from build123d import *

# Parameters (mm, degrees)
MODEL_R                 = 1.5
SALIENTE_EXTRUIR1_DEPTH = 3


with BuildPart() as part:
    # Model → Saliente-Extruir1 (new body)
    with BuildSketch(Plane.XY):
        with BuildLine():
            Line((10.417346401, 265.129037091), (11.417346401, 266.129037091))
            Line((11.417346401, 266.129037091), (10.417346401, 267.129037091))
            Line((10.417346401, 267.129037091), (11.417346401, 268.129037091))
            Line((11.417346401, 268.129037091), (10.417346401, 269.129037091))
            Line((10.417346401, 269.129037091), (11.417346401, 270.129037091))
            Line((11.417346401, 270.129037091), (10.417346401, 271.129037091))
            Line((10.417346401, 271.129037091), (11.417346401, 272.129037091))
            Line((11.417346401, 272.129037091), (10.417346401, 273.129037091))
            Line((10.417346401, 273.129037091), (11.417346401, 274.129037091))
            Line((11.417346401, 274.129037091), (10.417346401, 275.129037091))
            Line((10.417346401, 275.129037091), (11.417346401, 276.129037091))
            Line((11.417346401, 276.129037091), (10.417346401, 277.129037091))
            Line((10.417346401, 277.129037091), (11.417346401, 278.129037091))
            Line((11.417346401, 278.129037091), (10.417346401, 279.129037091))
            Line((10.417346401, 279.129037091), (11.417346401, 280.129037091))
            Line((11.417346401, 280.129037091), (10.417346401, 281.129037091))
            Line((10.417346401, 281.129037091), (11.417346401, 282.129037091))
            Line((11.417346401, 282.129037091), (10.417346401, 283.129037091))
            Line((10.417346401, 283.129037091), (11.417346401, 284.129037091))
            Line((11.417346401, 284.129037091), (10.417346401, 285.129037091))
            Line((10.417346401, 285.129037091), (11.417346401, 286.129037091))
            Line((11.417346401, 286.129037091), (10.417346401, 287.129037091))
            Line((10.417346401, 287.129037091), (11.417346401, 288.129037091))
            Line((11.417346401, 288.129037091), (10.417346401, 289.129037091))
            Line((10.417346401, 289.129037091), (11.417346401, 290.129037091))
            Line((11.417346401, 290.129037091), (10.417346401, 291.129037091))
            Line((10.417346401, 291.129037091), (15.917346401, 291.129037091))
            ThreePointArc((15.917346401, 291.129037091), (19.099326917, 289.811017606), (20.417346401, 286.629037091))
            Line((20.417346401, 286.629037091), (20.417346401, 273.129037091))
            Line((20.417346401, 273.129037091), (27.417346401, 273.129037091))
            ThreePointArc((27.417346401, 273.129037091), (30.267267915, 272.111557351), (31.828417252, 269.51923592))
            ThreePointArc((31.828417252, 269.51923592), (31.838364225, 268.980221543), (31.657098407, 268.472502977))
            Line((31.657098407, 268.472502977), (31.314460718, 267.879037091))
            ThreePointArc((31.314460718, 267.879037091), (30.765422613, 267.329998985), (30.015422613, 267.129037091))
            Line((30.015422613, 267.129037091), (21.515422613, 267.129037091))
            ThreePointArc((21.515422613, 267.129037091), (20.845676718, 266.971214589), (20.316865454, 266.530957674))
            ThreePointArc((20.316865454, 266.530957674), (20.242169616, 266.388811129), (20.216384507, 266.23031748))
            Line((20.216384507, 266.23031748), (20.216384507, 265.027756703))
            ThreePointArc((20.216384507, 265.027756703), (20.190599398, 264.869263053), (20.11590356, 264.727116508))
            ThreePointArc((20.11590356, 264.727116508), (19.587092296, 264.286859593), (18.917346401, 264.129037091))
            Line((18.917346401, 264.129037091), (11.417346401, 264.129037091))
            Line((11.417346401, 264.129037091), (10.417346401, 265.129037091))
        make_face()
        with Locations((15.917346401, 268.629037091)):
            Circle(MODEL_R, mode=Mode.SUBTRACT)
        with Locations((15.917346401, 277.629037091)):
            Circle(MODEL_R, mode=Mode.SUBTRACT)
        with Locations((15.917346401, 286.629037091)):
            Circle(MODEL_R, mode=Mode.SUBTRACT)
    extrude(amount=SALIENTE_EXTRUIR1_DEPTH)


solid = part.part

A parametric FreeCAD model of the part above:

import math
import FreeCAD as App
import Part
import Sketcher
from FreeCAD import Vector
Q = App.Units.Quantity

doc = App.newDocument("Part")
body = doc.addObject("PartDesign::Body", "Body")

sketch1 = doc.addObject("Sketcher::SketchObject", "Sketch")
body.addObject(sketch1)
sketch1.AttachmentSupport = (doc.XY_Plane, [""])
sketch1.MapMode = "FlatFace"
sketch1.addGeometry([
    Part.LineSegment(Vector(11.42, 266.13, 0), Vector(10.42, 265.13, 0)),
    Part.LineSegment(Vector(10.42, 265.13, 0), Vector(11.42, 264.13, 0)),
    Part.LineSegment(Vector(11.42, 264.13, 0), Vector(18.92, 264.13, 0)),
    Part.ArcOfCircle(Part.Circle(Vector(18.92, 265.63, 0), Vector(0, 0, 1), 1.5), math.radians(-90), math.radians(-37)),
    Part.ArcOfCircle(Part.Circle(Vector(19.72, 265.03, 0), Vector(0, 0, 1), 0.5), math.radians(-37), math.radians(0)),
    Part.LineSegment(Vector(20.22, 265.03, 0), Vector(20.22, 266.23, 0)),
    Part.ArcOfCircle(Part.Circle(Vector(20.72, 266.23, 0), Vector(0, 0, 1), 0.5), math.radians(143), math.radians(180)),
    Part.ArcOfCircle(Part.Circle(Vector(21.52, 265.63, 0), Vector(0, 0, 1), 1.5), math.radians(90), math.radians(143)),
    Part.LineSegment(Vector(21.52, 267.13, 0), Vector(30.02, 267.13, 0)),
    Part.ArcOfCircle(Part.Circle(Vector(30.02, 268.63, 0), Vector(0, 0, 1), 1.5), math.radians(-90), math.radians(-30)),
    Part.LineSegment(Vector(31.31, 267.88, 0), Vector(31.66, 268.47, 0)),
    Part.ArcOfCircle(Part.Circle(Vector(30.36, 269.22, 0), Vector(0, 0, 1), 1.5), math.radians(-30), math.radians(11)),
    Part.ArcOfCircle(Part.Circle(Vector(27.42, 268.63, 0), Vector(0, 0, 1), 4.5), math.radians(11), math.radians(90)),
    Part.LineSegment(Vector(27.42, 273.13, 0), Vector(20.42, 273.13, 0)),
    Part.LineSegment(Vector(20.42, 273.13, 0), Vector(20.42, 286.63, 0)),
    Part.ArcOfCircle(Part.Circle(Vector(15.92, 286.63, 0), Vector(0, 0, 1), 4.5), math.radians(0), math.radians(90)),
    Part.LineSegment(Vector(15.92, 291.13, 0), Vector(10.42, 291.13, 0)),
    Part.LineSegment(Vector(10.42, 291.13, 0), Vector(11.42, 290.13, 0)),
    Part.LineSegment(Vector(11.42, 290.13, 0), Vector(10.42, 289.13, 0)),
    Part.LineSegment(Vector(10.42, 289.13, 0), Vector(11.42, 288.13, 0)),
    Part.LineSegment(Vector(11.42, 288.13, 0), Vector(10.42, 287.13, 0)),
    Part.LineSegment(Vector(10.42, 287.13, 0), Vector(11.42, 286.13, 0)),
    Part.LineSegment(Vector(11.42, 286.13, 0), Vector(10.42, 285.13, 0)),
    Part.LineSegment(Vector(10.42, 285.13, 0), Vector(11.42, 284.13, 0)),
    Part.LineSegment(Vector(11.42, 284.13, 0), Vector(10.42, 283.13, 0)),
    Part.LineSegment(Vector(10.42, 283.13, 0), Vector(11.42, 282.13, 0)),
    Part.LineSegment(Vector(11.42, 282.13, 0), Vector(10.42, 281.13, 0)),
    Part.LineSegment(Vector(10.42, 281.13, 0), Vector(11.42, 280.13, 0)),
    Part.LineSegment(Vector(11.42, 280.13, 0), Vector(10.42, 279.13, 0)),
    Part.LineSegment(Vector(10.42, 279.13, 0), Vector(11.42, 278.13, 0)),
    Part.LineSegment(Vector(11.42, 278.13, 0), Vector(10.42, 277.13, 0)),
    Part.LineSegment(Vector(10.42, 277.13, 0), Vector(11.42, 276.13, 0)),
    Part.LineSegment(Vector(11.42, 276.13, 0), Vector(10.42, 275.13, 0)),
    Part.LineSegment(Vector(10.42, 275.13, 0), Vector(11.42, 274.13, 0)),
    Part.LineSegment(Vector(11.42, 274.13, 0), Vector(10.42, 273.13, 0)),
    Part.LineSegment(Vector(10.42, 273.13, 0), Vector(11.42, 272.13, 0)),
    Part.LineSegment(Vector(11.42, 272.13, 0), Vector(10.42, 271.13, 0)),
    Part.LineSegment(Vector(10.42, 271.13, 0), Vector(11.42, 270.13, 0)),
    Part.LineSegment(Vector(11.42, 270.13, 0), Vector(10.42, 269.13, 0)),
    Part.LineSegment(Vector(10.42, 269.13, 0), Vector(11.42, 268.13, 0)),
    Part.LineSegment(Vector(11.42, 268.13, 0), Vector(10.42, 267.13, 0)),
    Part.LineSegment(Vector(10.42, 267.13, 0), Vector(11.42, 266.13, 0)),
    Part.Circle(Vector(15.92, 268.63, 0), Vector(0, 0, 1), 1.5),
    Part.Circle(Vector(15.92, 277.63, 0), Vector(0, 0, 1), 1.5),
    Part.Circle(Vector(15.92, 286.63, 0), Vector(0, 0, 1), 1.5),
], False)
sketch1.addConstraint([
    Sketcher.Constraint("Coincident", 0, 2, 1, 1),
    Sketcher.Constraint("Coincident", 1, 2, 2, 1),
    Sketcher.Constraint("Tangent", 2, 2, 3, 1),
    Sketcher.Constraint("Tangent", 3, 2, 4, 1),
    Sketcher.Constraint("Tangent", 4, 2, 5, 1),
    Sketcher.Constraint("Tangent", 5, 2, 6, 2),
    Sketcher.Constraint("Tangent", 6, 1, 7, 2),
    Sketcher.Constraint("Tangent", 7, 1, 8, 1),
    Sketcher.Constraint("Tangent", 8, 2, 9, 1),
    Sketcher.Constraint("Tangent", 9, 2, 10, 1),
    Sketcher.Constraint("Tangent", 10, 2, 11, 1),
    Sketcher.Constraint("Tangent", 11, 2, 12, 1),
    Sketcher.Constraint("Tangent", 12, 2, 13, 1),
    Sketcher.Constraint("Coincident", 13, 2, 14, 1),
    Sketcher.Constraint("Tangent", 14, 2, 15, 1),
    Sketcher.Constraint("Tangent", 15, 2, 16, 1),
    Sketcher.Constraint("Coincident", 16, 2, 17, 1),
    Sketcher.Constraint("Coincident", 17, 2, 18, 1),
    Sketcher.Constraint("Coincident", 18, 2, 19, 1),
    Sketcher.Constraint("Coincident", 19, 2, 20, 1),
    Sketcher.Constraint("Coincident", 20, 2, 21, 1),
    Sketcher.Constraint("Coincident", 21, 2, 22, 1),
    Sketcher.Constraint("Coincident", 22, 2, 23, 1),
    Sketcher.Constraint("Coincident", 23, 2, 24, 1),
    Sketcher.Constraint("Coincident", 24, 2, 25, 1),
    Sketcher.Constraint("Coincident", 25, 2, 26, 1),
    Sketcher.Constraint("Coincident", 26, 2, 27, 1),
    Sketcher.Constraint("Coincident", 27, 2, 28, 1),
    Sketcher.Constraint("Coincident", 28, 2, 29, 1),
    Sketcher.Constraint("Coincident", 29, 2, 30, 1),
    Sketcher.Constraint("Coincident", 30, 2, 31, 1),
    Sketcher.Constraint("Coincident", 31, 2, 32, 1),
    Sketcher.Constraint("Coincident", 32, 2, 33, 1),
    Sketcher.Constraint("Coincident", 33, 2, 34, 1),
    Sketcher.Constraint("Coincident", 34, 2, 35, 1),
    Sketcher.Constraint("Coincident", 35, 2, 36, 1),
    Sketcher.Constraint("Coincident", 36, 2, 37, 1),
    Sketcher.Constraint("Coincident", 37, 2, 38, 1),
    Sketcher.Constraint("Coincident", 38, 2, 39, 1),
    Sketcher.Constraint("Coincident", 39, 2, 40, 1),
    Sketcher.Constraint("Coincident", 40, 2, 41, 1),
    Sketcher.Constraint("Coincident", 41, 2, 0, 1),
    Sketcher.Constraint("Horizontal", 2),
    Sketcher.Constraint("Vertical", 5),
    Sketcher.Constraint("Horizontal", 8),
    Sketcher.Constraint("Horizontal", 13),
    Sketcher.Constraint("Vertical", 14),
    Sketcher.Constraint("Horizontal", 16),
    Sketcher.Constraint("Coincident", 44, 3, 15, 3),
    Sketcher.Constraint("Equal", 4, 6),
    Sketcher.Constraint("Equal", 3, 7),
    Sketcher.Constraint("Equal", 7, 9),
    Sketcher.Constraint("Equal", 9, 11),
    Sketcher.Constraint("Equal", 12, 15),
    Sketcher.Constraint("Equal", 11, 42),
    Sketcher.Constraint("Equal", 42, 43),
    Sketcher.Constraint("Equal", 43, 44),
    Sketcher.Constraint("Perpendicular", 0, 1),
    Sketcher.Constraint("Parallel", 1, 17),
    Sketcher.Constraint("Perpendicular", 17, 18),
    Sketcher.Constraint("Perpendicular", 18, 19),
    Sketcher.Constraint("Perpendicular", 19, 20),
    Sketcher.Constraint("Perpendicular", 20, 21),
    Sketcher.Constraint("Perpendicular", 21, 22),
    Sketcher.Constraint("Perpendicular", 22, 23),
    Sketcher.Constraint("Perpendicular", 23, 24),
    Sketcher.Constraint("Perpendicular", 24, 25),
    Sketcher.Constraint("Perpendicular", 25, 26),
    Sketcher.Constraint("Perpendicular", 26, 27),
    Sketcher.Constraint("Perpendicular", 27, 28),
    Sketcher.Constraint("Perpendicular", 28, 29),
    Sketcher.Constraint("Perpendicular", 29, 30),
    Sketcher.Constraint("Perpendicular", 30, 31),
    Sketcher.Constraint("Perpendicular", 31, 32),
    Sketcher.Constraint("Perpendicular", 32, 33),
    Sketcher.Constraint("Perpendicular", 33, 34),
    Sketcher.Constraint("Perpendicular", 34, 35),
    Sketcher.Constraint("Perpendicular", 35, 36),
    Sketcher.Constraint("Perpendicular", 36, 37),
    Sketcher.Constraint("Perpendicular", 37, 38),
    Sketcher.Constraint("Perpendicular", 38, 39),
    Sketcher.Constraint("Perpendicular", 39, 40),
    Sketcher.Constraint("Perpendicular", 40, 41),
    Sketcher.Constraint("Horizontal", 3, 3, 7, 3),
    Sketcher.Constraint("Horizontal", 9, 3, 12, 3),
    Sketcher.Constraint("Horizontal", 12, 3, 42, 3),
    Sketcher.Constraint("Horizontal", 13, 2, 34, 2),
    Sketcher.Constraint("Horizontal", 8, 2, 40, 2),
    Sketcher.Constraint("Vertical", 15, 3, 42, 3),
    Sketcher.Constraint("Vertical", 42, 3, 43, 3),
    Sketcher.Constraint("Vertical", 0, 2, 16, 2),
    Sketcher.Constraint("Vertical", 1, 2, 17, 2),
    Sketcher.Constraint("Vertical", 16, 2, 18, 2),
    Sketcher.Constraint("Vertical", 17, 2, 19, 2),
    Sketcher.Constraint("Vertical", 18, 2, 20, 2),
    Sketcher.Constraint("Vertical", 19, 2, 21, 2),
    Sketcher.Constraint("Vertical", 20, 2, 22, 2),
    Sketcher.Constraint("Vertical", 21, 2, 23, 2),
    Sketcher.Constraint("Vertical", 22, 2, 24, 2),
    Sketcher.Constraint("Vertical", 23, 2, 25, 2),
    Sketcher.Constraint("Vertical", 24, 2, 26, 2),
    Sketcher.Constraint("Vertical", 25, 2, 27, 2),
    Sketcher.Constraint("Vertical", 26, 2, 28, 2),
    Sketcher.Constraint("Vertical", 27, 2, 29, 2),
    Sketcher.Constraint("Vertical", 28, 2, 30, 2),
    Sketcher.Constraint("Vertical", 29, 2, 31, 2),
    Sketcher.Constraint("Vertical", 30, 2, 32, 2),
    Sketcher.Constraint("Vertical", 31, 2, 33, 2),
    Sketcher.Constraint("Vertical", 32, 2, 34, 2),
    Sketcher.Constraint("Vertical", 33, 2, 35, 2),
    Sketcher.Constraint("Vertical", 34, 2, 36, 2),
    Sketcher.Constraint("Vertical", 35, 2, 37, 2),
    Sketcher.Constraint("Vertical", 36, 2, 38, 2),
    Sketcher.Constraint("Vertical", 37, 2, 39, 2),
    Sketcher.Constraint("Vertical", 38, 2, 40, 2),
    Sketcher.Constraint("Vertical", 39, 2, 41, 2),
    Sketcher.Constraint("Equal", 0, 1),
    Sketcher.Constraint("Diameter", 42, Q("3 mm")),
    Sketcher.Constraint("Radius", 4, Q("0.5 mm")),
    Sketcher.Constraint("DistanceX", 13, 2, 13, 1, Q("7 mm")),
    Sketcher.Constraint("Angle", 10, Q("60 deg")),
    Sketcher.Constraint("DistanceX", 2, 1, 2, 2, Q("7.5 mm")),
    Sketcher.Constraint("DistanceX", 8, 1, 8, 2, Q("8.5 mm")),
    Sketcher.Constraint("DistanceX", 16, 2, 16, 1, Q("5.5 mm")),
    Sketcher.Constraint("DistanceY", 42, 3, 43, 3, Q("9 mm")),
    Sketcher.Constraint("DistanceY", 5, 1, 5, 2, Q("1.202561 mm")),
    Sketcher.Constraint("DistanceX", -1, 1, 10, 2, Q("31.657098 mm")),
    Sketcher.Constraint("DistanceY", 3, 2, 6, 3, Q("1.503201 mm")),
    Sketcher.Constraint("DistanceY", -1, 1, 3, 3, Q("265.629037 mm")),
])
pad1 = doc.addObject("PartDesign::Pad", "Pad")
body.addObject(pad1)
pad1.Profile = sketch1
pad1.Length = 3

doc.recompute()
